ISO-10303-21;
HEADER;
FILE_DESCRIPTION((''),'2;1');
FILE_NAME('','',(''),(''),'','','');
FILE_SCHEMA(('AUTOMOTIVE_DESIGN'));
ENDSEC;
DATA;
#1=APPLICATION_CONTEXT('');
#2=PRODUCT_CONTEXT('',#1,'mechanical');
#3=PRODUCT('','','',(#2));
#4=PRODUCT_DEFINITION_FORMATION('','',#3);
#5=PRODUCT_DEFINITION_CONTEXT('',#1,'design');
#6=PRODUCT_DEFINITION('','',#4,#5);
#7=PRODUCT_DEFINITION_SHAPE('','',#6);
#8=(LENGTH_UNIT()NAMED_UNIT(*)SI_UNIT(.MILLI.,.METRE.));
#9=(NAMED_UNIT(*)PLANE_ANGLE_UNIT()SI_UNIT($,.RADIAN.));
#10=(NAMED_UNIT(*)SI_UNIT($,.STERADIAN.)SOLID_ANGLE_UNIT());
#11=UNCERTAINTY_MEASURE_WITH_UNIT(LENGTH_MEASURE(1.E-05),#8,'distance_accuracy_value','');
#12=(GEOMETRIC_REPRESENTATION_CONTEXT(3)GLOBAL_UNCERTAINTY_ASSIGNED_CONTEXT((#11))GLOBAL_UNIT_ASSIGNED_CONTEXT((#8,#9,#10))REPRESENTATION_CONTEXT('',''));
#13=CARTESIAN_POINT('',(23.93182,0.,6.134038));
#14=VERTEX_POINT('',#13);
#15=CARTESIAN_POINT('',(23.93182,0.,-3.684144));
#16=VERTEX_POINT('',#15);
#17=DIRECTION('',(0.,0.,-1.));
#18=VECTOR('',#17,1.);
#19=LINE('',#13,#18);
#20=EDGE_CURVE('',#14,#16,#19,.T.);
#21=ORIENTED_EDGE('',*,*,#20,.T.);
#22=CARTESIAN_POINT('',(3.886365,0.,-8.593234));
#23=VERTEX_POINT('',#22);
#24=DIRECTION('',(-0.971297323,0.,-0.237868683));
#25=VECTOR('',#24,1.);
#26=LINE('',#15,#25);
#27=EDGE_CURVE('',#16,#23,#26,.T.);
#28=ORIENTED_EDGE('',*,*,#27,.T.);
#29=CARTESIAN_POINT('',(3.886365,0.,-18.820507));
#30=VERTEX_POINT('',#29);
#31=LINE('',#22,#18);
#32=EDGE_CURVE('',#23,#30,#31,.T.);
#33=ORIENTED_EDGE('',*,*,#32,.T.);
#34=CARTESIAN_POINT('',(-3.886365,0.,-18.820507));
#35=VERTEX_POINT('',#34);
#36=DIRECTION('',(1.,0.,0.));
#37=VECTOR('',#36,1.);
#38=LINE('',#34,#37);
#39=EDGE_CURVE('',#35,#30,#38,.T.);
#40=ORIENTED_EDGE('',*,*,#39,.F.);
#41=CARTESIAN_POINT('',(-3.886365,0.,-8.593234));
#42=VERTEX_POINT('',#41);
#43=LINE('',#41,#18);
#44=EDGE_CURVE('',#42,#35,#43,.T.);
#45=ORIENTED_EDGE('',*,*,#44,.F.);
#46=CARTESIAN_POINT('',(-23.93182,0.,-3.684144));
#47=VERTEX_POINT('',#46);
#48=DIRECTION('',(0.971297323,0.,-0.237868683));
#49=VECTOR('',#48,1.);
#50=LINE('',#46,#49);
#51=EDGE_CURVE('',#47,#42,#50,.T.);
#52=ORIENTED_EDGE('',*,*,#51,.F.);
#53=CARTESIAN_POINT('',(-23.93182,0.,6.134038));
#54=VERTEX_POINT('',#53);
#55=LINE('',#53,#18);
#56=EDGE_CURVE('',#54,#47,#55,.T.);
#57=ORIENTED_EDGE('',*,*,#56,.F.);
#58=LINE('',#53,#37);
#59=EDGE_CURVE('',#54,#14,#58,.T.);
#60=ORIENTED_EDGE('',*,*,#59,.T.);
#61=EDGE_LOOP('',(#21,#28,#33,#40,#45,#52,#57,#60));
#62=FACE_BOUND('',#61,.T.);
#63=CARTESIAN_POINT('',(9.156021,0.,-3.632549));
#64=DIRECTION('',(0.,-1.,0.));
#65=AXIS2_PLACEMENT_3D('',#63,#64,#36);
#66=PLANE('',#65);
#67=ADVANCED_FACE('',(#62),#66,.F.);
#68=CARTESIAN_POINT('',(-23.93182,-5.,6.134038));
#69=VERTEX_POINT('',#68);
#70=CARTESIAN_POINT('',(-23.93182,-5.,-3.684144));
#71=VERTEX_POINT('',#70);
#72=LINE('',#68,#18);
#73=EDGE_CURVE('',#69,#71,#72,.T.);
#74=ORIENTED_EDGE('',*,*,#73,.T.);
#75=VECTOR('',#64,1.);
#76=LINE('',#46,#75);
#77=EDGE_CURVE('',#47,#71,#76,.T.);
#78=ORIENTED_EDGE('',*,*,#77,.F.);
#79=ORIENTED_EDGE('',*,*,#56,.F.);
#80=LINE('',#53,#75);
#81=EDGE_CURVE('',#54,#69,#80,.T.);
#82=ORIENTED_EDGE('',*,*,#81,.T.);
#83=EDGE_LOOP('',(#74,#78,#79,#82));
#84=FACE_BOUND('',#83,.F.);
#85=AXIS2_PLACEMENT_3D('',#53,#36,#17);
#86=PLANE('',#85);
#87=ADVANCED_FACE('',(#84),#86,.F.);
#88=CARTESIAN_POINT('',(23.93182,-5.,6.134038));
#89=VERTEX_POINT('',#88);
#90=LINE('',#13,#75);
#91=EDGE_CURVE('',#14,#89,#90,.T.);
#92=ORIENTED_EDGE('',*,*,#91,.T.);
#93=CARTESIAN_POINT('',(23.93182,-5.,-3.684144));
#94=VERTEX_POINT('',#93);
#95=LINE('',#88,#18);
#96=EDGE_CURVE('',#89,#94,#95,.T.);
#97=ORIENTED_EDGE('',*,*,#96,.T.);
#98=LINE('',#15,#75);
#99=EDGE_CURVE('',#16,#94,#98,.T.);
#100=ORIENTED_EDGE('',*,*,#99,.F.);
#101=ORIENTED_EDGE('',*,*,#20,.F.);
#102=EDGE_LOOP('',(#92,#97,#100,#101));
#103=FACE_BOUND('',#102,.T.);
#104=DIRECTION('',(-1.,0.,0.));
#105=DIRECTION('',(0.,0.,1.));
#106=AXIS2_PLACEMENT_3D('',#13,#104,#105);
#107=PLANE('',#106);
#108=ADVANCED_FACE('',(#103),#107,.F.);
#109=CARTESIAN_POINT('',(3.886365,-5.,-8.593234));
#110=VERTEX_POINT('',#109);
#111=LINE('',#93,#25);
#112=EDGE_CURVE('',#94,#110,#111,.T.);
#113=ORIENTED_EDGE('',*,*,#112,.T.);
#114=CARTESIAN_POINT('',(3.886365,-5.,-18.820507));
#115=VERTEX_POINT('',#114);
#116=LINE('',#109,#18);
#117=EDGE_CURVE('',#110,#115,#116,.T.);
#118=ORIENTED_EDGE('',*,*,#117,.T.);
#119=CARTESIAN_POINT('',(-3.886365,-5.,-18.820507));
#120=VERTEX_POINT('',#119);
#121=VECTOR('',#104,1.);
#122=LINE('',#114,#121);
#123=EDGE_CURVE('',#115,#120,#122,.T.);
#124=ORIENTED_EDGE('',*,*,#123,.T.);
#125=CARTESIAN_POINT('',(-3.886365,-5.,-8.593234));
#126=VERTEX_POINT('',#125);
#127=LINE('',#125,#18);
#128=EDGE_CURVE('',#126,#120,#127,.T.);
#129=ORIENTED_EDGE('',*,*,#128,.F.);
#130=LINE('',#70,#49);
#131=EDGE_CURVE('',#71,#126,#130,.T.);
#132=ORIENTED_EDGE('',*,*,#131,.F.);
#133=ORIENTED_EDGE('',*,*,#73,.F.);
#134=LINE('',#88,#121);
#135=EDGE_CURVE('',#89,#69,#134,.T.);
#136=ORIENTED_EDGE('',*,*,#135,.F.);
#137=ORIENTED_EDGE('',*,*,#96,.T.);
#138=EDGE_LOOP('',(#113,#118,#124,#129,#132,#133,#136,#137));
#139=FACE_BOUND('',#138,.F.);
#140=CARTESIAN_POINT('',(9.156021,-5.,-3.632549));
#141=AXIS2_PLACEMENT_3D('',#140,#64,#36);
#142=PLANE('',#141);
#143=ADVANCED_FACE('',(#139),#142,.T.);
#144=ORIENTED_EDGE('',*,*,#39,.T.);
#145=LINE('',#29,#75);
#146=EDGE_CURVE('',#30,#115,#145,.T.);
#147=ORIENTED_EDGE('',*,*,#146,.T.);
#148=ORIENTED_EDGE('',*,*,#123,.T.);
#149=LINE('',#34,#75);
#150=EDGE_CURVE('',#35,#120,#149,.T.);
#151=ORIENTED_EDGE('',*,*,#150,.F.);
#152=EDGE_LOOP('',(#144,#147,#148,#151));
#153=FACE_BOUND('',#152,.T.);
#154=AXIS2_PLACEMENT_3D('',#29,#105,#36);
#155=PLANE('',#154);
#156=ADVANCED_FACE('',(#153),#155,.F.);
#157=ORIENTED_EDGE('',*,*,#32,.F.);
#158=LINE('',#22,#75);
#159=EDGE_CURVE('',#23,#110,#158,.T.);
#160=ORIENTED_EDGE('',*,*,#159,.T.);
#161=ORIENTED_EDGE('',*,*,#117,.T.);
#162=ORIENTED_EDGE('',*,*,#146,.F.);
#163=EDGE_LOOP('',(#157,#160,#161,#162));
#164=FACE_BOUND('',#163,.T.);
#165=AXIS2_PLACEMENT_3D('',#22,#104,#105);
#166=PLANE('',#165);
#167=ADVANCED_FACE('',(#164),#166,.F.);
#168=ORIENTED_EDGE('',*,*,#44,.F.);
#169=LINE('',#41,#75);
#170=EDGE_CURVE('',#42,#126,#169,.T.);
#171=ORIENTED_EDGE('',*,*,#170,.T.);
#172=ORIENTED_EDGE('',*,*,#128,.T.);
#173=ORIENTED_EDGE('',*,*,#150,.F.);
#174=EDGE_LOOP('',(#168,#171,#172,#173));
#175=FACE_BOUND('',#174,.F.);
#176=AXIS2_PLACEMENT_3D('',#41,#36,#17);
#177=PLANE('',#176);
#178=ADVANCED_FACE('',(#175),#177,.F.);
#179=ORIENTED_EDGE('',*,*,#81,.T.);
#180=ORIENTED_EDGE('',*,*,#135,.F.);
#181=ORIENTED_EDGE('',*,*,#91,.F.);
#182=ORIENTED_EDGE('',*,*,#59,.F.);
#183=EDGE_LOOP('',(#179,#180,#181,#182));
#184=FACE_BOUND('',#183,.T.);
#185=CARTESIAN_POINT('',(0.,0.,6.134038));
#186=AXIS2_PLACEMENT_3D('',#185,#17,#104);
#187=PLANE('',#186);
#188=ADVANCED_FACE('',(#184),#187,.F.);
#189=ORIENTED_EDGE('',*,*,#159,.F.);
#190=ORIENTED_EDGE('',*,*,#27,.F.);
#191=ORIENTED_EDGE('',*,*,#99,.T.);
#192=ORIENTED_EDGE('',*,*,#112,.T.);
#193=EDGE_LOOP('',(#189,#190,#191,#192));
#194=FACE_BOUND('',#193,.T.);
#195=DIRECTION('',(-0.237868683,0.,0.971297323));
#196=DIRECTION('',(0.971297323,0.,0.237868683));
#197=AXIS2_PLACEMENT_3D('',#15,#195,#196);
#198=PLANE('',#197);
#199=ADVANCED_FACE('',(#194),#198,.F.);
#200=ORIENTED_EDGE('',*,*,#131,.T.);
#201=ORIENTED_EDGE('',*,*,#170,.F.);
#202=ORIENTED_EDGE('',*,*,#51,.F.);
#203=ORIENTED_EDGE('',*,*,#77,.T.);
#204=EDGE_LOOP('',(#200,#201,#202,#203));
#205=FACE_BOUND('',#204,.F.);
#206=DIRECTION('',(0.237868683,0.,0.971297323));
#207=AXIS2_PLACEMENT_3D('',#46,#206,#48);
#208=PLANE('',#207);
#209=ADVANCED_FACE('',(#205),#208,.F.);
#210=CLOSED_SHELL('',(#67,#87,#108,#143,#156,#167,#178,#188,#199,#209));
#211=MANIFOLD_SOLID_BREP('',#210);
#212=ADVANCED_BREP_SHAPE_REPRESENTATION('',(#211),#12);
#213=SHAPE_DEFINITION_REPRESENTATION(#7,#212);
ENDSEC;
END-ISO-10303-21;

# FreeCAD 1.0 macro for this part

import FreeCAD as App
import Part
import Sketcher
from FreeCAD import Vector


def add_polygon(sketch, points):
    """Adds a closed chain of lines whose ends are joined by coincident constraints."""
    first, n = sketch.GeometryCount, len(points)
    for a, b in zip(points, points[1:] + points[:1]):
        sketch.addGeometry(Part.LineSegment(App.Vector(*a, 0), App.Vector(*b, 0)), False)
    for i in range(n):
        sketch.addConstraint(Sketcher.Constraint("Coincident", first + i, 2, first + (i + 1) % n, 1))

doc = App.newDocument("Part")
body = doc.addObject("PartDesign::Body", "Body")

sketch1 = body.newObject("Sketcher::SketchObject", "Sketch")
sketch1.AttachmentSupport = (doc.getObject("XZ_Plane"), [""])
sketch1.MapMode = "FlatFace"
add_polygon(sketch1, [(-3.886365, -18.820507), (0, -18.820507), (0, 6.134038), (-23.93182, 6.134038), (-23.93182, -3.684144), (-3.886365, -8.593234)])
sketch1.addConstraint([
    Sketcher.Constraint("Horizontal", 0),
    Sketcher.Constraint("Vertical", 1),
    Sketcher.Constraint("Horizontal", 2),
    Sketcher.Constraint("Vertical", 3),
    Sketcher.Constraint("Vertical", 5),
    Sketcher.Constraint("PointOnObject", 0, 2, -2),
    Sketcher.Constraint("DistanceX", 2, 2, 2, 1, 23.93182),
    Sketcher.Constraint("DistanceX", 0, 1, 0, 2, 3.886365),
    Sketcher.Constraint("DistanceY", 1, 1, 1, 2, 24.954545),
    Sketcher.Constraint("DistanceY", 3, 2, 3, 1, 9.818182),
    Sketcher.Constraint("DistanceY", 5, 2, 5, 1, 10.227273),
    Sketcher.Constraint("DistanceY", -1, 1, 1, 2, 6.134038),
])
pad1 = body.newObject("PartDesign::Pad", "Pad")
pad1.Profile = sketch1
pad1.Length = 5
body2 = doc.addObject("PartDesign::Body", "Body001")
doc.recompute()

body2.BaseFeature = body
doc.recompute()

mirroring = doc.addObject("Part::Mirroring", "Mirroring")
mirroring.Source = body
mirroring.Base = Vector(0, 0, 0)
mirroring.Normal = Vector(1, 0, 0)
body3 = doc.addObject("PartDesign::Body", "Body002")
body3.BaseFeature = mirroring
boolean = body2.newObject("PartDesign::Boolean", "Boolean")
boolean.Type = "Fuse"
boolean.addObjects([body3])
doc.recompute()
mirroring.Visibility = False

doc.recompute()
